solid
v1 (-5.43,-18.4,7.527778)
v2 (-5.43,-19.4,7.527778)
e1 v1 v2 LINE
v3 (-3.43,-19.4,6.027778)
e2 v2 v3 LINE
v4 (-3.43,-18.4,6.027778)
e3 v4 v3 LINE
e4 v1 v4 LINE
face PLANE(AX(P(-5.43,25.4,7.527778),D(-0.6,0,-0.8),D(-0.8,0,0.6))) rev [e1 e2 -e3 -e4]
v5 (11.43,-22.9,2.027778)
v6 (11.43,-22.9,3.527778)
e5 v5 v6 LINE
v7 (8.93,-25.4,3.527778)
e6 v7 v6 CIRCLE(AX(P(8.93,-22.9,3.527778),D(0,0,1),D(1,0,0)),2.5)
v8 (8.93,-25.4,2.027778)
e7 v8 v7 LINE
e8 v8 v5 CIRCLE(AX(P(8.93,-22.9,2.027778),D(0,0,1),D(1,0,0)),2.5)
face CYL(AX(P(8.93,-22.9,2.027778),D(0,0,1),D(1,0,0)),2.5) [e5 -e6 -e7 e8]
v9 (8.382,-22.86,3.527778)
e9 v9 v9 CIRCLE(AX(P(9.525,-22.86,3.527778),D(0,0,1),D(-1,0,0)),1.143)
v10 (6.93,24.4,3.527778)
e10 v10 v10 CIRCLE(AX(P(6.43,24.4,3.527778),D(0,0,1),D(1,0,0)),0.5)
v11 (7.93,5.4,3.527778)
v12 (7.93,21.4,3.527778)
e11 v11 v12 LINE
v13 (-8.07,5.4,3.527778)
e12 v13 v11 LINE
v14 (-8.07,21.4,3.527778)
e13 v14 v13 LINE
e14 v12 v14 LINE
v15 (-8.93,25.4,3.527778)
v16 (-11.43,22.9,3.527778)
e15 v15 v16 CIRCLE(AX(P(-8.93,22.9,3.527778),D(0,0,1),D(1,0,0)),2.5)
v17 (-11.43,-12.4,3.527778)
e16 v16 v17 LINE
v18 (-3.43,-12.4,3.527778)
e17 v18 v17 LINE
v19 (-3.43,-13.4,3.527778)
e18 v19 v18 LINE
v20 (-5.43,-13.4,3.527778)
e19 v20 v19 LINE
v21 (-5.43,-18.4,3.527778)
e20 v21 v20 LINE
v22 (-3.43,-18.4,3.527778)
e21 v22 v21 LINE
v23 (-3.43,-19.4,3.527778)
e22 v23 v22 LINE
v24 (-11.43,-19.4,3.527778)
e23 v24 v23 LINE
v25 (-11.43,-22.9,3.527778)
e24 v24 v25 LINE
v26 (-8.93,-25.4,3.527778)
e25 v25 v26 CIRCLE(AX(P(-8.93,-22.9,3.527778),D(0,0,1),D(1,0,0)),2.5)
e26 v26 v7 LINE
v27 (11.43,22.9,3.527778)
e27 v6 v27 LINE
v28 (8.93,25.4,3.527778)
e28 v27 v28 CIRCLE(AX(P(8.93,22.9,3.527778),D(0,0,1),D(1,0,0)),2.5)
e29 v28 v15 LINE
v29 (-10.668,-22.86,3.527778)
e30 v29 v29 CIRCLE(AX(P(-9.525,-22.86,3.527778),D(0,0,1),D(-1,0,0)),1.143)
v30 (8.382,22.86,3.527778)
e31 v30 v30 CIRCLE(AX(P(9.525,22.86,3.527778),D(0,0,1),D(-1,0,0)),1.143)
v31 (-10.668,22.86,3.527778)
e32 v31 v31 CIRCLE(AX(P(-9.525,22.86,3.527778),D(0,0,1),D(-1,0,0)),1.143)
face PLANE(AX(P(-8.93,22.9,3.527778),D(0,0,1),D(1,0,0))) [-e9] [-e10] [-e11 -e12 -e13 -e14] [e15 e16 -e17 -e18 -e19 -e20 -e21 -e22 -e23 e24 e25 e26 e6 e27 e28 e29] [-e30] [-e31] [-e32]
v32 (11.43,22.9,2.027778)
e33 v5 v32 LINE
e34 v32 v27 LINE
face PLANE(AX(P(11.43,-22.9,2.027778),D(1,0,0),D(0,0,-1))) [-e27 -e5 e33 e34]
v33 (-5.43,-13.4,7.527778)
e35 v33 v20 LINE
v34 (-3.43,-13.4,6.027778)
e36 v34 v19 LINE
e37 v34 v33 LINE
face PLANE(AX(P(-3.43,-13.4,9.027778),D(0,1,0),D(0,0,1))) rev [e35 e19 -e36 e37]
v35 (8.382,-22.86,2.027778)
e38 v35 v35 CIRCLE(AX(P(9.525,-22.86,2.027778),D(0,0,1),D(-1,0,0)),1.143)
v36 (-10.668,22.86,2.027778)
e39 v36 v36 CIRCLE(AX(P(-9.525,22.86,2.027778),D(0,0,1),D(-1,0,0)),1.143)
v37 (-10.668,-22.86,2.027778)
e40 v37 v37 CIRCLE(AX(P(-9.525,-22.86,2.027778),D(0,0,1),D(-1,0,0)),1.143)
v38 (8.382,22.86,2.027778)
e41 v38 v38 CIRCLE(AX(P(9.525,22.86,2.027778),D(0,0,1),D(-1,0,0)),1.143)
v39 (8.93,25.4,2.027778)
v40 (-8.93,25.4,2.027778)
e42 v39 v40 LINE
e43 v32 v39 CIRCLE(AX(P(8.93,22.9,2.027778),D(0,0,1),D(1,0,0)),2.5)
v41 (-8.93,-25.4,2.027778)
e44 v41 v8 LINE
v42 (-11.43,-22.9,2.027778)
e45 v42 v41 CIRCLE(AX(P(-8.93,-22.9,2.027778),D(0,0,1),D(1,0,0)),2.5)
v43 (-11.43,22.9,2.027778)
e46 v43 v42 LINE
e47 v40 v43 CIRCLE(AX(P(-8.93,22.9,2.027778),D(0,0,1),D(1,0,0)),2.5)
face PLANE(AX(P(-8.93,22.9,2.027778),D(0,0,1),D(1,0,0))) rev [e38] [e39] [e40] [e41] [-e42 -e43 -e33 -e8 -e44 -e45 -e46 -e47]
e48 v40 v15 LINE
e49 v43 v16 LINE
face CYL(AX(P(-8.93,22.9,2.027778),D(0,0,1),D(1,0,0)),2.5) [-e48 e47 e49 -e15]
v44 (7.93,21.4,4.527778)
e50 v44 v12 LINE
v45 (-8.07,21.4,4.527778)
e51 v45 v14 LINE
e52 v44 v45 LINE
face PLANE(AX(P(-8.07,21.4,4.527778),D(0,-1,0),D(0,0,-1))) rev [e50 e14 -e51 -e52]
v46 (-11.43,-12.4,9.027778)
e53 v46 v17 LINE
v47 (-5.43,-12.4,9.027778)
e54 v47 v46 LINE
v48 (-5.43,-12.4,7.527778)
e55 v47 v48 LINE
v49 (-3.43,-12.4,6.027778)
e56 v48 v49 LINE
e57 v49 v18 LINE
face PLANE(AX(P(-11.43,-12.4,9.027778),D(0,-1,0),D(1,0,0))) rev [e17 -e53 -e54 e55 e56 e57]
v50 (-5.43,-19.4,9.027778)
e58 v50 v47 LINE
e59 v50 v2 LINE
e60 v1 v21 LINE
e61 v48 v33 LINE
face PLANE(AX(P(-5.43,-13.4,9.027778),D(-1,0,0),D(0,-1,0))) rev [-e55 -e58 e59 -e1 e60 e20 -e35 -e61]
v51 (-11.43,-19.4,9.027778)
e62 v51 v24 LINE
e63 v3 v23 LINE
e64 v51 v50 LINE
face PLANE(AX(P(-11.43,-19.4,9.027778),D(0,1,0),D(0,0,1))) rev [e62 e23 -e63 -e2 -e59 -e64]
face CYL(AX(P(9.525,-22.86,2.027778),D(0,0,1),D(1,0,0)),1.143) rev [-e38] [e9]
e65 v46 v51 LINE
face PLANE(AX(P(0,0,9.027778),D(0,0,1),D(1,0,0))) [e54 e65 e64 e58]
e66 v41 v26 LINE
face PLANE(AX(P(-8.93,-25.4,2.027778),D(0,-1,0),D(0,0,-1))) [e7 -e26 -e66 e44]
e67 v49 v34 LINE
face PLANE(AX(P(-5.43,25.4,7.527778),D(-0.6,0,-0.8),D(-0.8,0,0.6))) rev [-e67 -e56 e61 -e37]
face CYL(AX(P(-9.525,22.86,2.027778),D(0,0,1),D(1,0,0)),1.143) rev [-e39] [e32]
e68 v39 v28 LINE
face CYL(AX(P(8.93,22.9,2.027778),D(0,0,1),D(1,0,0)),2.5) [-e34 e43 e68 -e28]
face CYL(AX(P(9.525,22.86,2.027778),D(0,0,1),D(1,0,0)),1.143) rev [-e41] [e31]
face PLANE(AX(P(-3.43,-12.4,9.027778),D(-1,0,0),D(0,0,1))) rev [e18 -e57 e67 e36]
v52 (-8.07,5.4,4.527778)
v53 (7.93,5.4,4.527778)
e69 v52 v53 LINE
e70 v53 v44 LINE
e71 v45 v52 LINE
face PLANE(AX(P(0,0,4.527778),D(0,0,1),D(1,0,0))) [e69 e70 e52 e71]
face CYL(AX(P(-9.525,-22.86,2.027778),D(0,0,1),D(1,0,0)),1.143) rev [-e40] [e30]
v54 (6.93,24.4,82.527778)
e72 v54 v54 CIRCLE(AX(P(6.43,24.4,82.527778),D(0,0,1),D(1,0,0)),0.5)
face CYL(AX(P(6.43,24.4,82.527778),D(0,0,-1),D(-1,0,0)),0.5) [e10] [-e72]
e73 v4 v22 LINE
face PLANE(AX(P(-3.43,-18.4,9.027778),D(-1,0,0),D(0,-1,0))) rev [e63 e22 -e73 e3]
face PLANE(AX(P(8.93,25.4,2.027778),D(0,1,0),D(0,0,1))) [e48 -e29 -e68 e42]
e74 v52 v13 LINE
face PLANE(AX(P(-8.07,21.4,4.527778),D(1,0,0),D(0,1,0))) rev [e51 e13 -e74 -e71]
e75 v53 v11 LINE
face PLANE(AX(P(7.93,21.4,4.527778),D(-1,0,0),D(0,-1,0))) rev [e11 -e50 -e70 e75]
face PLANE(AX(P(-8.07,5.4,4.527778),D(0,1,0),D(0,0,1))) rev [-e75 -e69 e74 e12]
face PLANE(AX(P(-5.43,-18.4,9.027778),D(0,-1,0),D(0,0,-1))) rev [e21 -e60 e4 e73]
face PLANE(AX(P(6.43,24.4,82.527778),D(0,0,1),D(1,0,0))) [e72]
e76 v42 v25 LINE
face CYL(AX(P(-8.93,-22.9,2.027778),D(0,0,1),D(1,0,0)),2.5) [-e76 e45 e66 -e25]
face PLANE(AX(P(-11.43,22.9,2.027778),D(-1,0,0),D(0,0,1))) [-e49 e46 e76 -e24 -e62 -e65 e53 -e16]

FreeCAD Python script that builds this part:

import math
import FreeCAD as App
import Part
import Sketcher


def add_polygon(sketch, points):
    """Adds a closed chain of lines whose ends are joined by coincident constraints."""
    first, n = sketch.GeometryCount, len(points)
    for a, b in zip(points, points[1:] + points[:1]):
        sketch.addGeometry(Part.LineSegment(App.Vector(*a, 0), App.Vector(*b, 0)), False)
    for i in range(n):
        sketch.addConstraint(Sketcher.Constraint("Coincident", first + i, 2, first + (i + 1) % n, 1))

doc = App.newDocument("Part")
params = doc.addObject("Spreadsheet::Sheet", "Params")
for row, (alias, value) in enumerate([
    ("sketch1_radius", "2.5 mm"),
    ("sketch1_height", "45.8 mm"),
    ("sketch1_width", "17.86 mm"),
    ("pad1_length", "1.5 mm"),
    ("sketch2_width", "16 mm"),
    ("pad2_length", "1 mm"),
    ("sketch3_diameter", "1 mm"),
    ("pad3_length", "79 mm"),
    ("sketch4_width", "8 mm"),
    ("sketch4_width2", "2 mm"),
    ("sketch4_height", "7 mm"),
    ("sketch4_height2", "1 mm"),
    ("pad4_length", "5.5 mm"),
    ("sketch5_width", "2 mm"),
    ("sketch5_height", "3 mm"),
    ("sketch5_height2", "1.5 mm"),
], start=1):
    params.set(f"A{row}", alias)
    params.set(f"B{row}", "=" + value)
    params.setAlias(f"B{row}", alias)

body = doc.addObject("PartDesign::Body", "Body")

# Sketch on XY plane
sketch1 = body.newObject("Sketcher::SketchObject", "Sketch")
sketch1.AttachmentSupport = (doc.getObject("XY_Plane"), [""])
sketch1.MapMode = "FlatFace"
sketch1.AttachmentOffset = App.Placement(App.Vector(0, 0, 3.527778), App.Rotation())
sketch1.addGeometry([
    Part.LineSegment(App.Vector(-11.4, 22.9, 0), App.Vector(-11.4, -22.9, 0)),  # 0
    Part.ArcOfCircle(Part.Circle(App.Vector(-8.9, -22.9, 0), App.Vector(0, 0, 1), 2.5), math.radians(180), math.radians(270)),  # 1
    Part.LineSegment(App.Vector(-8.9, -25.4, 0), App.Vector(8.9, -25.4, 0)),  # 2
    Part.ArcOfCircle(Part.Circle(App.Vector(8.9, -22.9, 0), App.Vector(0, 0, 1), 2.5), math.radians(-90), math.radians(0)),  # 3
    Part.LineSegment(App.Vector(11.4, -22.9, 0), App.Vector(11.4, 22.9, 0)),  # 4
    Part.ArcOfCircle(Part.Circle(App.Vector(8.9, 22.9, 0), App.Vector(0, 0, 1), 2.5), math.radians(0), math.radians(90)),  # 5
    Part.LineSegment(App.Vector(8.9, 25.4, 0), App.Vector(-8.9, 25.4, 0)),  # 6
    Part.ArcOfCircle(Part.Circle(App.Vector(-8.9, 22.9, 0), App.Vector(0, 0, 1), 2.5), math.radians(90), math.radians(180)),  # 7
    Part.Circle(App.Vector(-9.5, -22.9, 0), App.Vector(0, 0, 1), 1.1),  # 8
    Part.Circle(App.Vector(9.5, -22.9, 0), App.Vector(0, 0, 1), 1.1),  # 9
    Part.Circle(App.Vector(-9.5, 22.9, 0), App.Vector(0, 0, 1), 1.1),  # 10
    Part.Circle(App.Vector(9.5, 22.9, 0), App.Vector(0, 0, 1), 1.1),  # 11
], False)
sketch1.addConstraint([
    Sketcher.Constraint("Tangent", 0, 2, 1, 1),
    Sketcher.Constraint("Tangent", 1, 2, 2, 1),
    Sketcher.Constraint("Tangent", 2, 2, 3, 1),
    Sketcher.Constraint("Tangent", 3, 2, 4, 1),
    Sketcher.Constraint("Tangent", 4, 2, 5, 1),
    Sketcher.Constraint("Tangent", 5, 2, 6, 1),
    Sketcher.Constraint("Tangent", 6, 2, 7, 1),
    Sketcher.Constraint("Tangent", 7, 2, 0, 1),
    Sketcher.Constraint("Vertical", 0),
    Sketcher.Constraint("Horizontal", 2),
    Sketcher.Constraint("Vertical", 4),
    Sketcher.Constraint("Horizontal", 6),
    Sketcher.Constraint("Equal", 1, 3),
    Sketcher.Constraint("Equal", 3, 5),
    Sketcher.Constraint("Equal", 5, 7),
    Sketcher.Constraint("Equal", 8, 9),
    Sketcher.Constraint("Equal", 9, 10),
    Sketcher.Constraint("Equal", 10, 11),
    Sketcher.Constraint("Symmetric", 1, 3, 5, 3, -1, 1),
    Sketcher.Constraint("Symmetric", 9, 3, 10, 3, -1, 1),
    Sketcher.Constraint("Symmetric", 8, 3, 11, 3, -1, 1),
    Sketcher.Constraint("Symmetric", 8, 3, 9, 3, -2),
    Sketcher.Constraint("Radius", 1, 2.5),
    Sketcher.Constraint("Diameter", 8, 2.286),
    Sketcher.Constraint("DistanceY", 0, 2, 0, 1, 45.8),
    Sketcher.Constraint("DistanceX", 2, 1, 2, 2, 17.86),
    Sketcher.Constraint("DistanceY", 8, 3, -1, 1, 22.86),
    Sketcher.Constraint("DistanceX", 8, 3, 9, 3, 19.05),
])
sketch1.setExpression("Constraints[22]", "Params.sketch1_radius")
sketch1.setExpression("Constraints[24]", "Params.sketch1_height")
sketch1.setExpression("Constraints[25]", "Params.sketch1_width")
pad1 = body.newObject("PartDesign::Pad", "Pad")
pad1.Profile = sketch1
pad1.setExpression("Length", "Params.pad1_length")
pad1.Reversed = True

# Sketch on XY plane
sketch2 = body.newObject("Sketcher::SketchObject", "Sketch001")
sketch2.AttachmentSupport = (doc.getObject("XY_Plane"), [""])
sketch2.MapMode = "FlatFace"
sketch2.AttachmentOffset = App.Placement(App.Vector(0, 0, 3.527778), App.Rotation())
add_polygon(sketch2, [(-8, 21), (-8, 5), (8, 5), (8, 21)])  # lines 0-3
sketch2.addConstraint([
    Sketcher.Constraint("Vertical", 0),
    Sketcher.Constraint("Horizontal", 1),
    Sketcher.Constraint("Vertical", 2),
    Sketcher.Constraint("Horizontal", 3),
    Sketcher.Constraint("Equal", 3, 0),
    Sketcher.Constraint("DistanceX", 1, 1, 1, 2, 16.0),
    Sketcher.Constraint("DistanceY", -1, 1, 0, 2, 5.4),
    Sketcher.Constraint("DistanceX", 0, 2, -1, 1, 8.07),
])
sketch2.setExpression("Constraints[9]", "Params.sketch2_width")
pad2 = body.newObject("PartDesign::Pad", "Pad001")
pad2.Profile = sketch2
pad2.setExpression("Length", "Params.pad2_length")

# Sketch on XY plane
sketch3 = body.newObject("Sketcher::SketchObject", "Sketch002")
sketch3.AttachmentSupport = (doc.getObject("XY_Plane"), [""])
sketch3.MapMode = "FlatFace"
sketch3.AttachmentOffset = App.Placement(App.Vector(0, 0, 3.527778), App.Rotation())
sketch3.addGeometry(Part.Circle(App.Vector(6.4, 24.4, 0), App.Vector(0, 0, 1), 0.5), False)
sketch3.addConstraint([
    Sketcher.Constraint("Diameter", 0, 1.0),
    Sketcher.Constraint("DistanceY", -1, 1, 0, 3, 24.4),
    Sketcher.Constraint("DistanceX", -1, 1, 0, 3, 6.43),
])
sketch3.setExpression("Constraints[0]", "Params.sketch3_diameter")
pad3 = body.newObject("PartDesign::Pad", "Pad002")
pad3.Profile = sketch3
pad3.setExpression("Length", "Params.pad3_length")

# Sketch on XY plane
sketch4 = body.newObject("Sketcher::SketchObject", "Sketch003")
sketch4.AttachmentSupport = (doc.getObject("XY_Plane"), [""])
sketch4.MapMode = "FlatFace"
sketch4.AttachmentOffset = App.Placement(App.Vector(0, 0, 3.527778), App.Rotation())
add_polygon(sketch4, [(-3.4, -12.4), (-11.4, -12.4), (-11.4, -19.4), (-3.4, -19.4), (-3.4, -18.4), (-5.4, -18.4), (-5.4, -13.4), (-3.4, -13.4)])  # lines 0-7
sketch4.addConstraint([
    Sketcher.Constraint("Horizontal", 0),
    Sketcher.Constraint("Vertical", 1),
    Sketcher.Constraint("Horizontal", 2),
    Sketcher.Constraint("Vertical", 3),
    Sketcher.Constraint("Horizontal", 4),
    Sketcher.Constraint("Vertical", 5),
    Sketcher.Constraint("Horizontal", 6),
    Sketcher.Constraint("Vertical", 7),
    Sketcher.Constraint("Vertical", 3, 2, 6, 2),
    Sketcher.Constraint("Equal", 3, 7),
    Sketcher.Constraint("DistanceX", 0, 2, 0, 1, 8.0),
    Sketcher.Constraint("DistanceX", 4, 2, 4, 1, 2.0),
    Sketcher.Constraint("DistanceY", 1, 2, 1, 1, 7.0),
    Sketcher.Constraint("DistanceY", 3, 1, 3, 2, 1.0),
    Sketcher.Constraint("DistanceY", 0, 2, -1, 1, 12.4),
    Sketcher.Constraint("DistanceX", 0, 2, -1, 1, 11.43),
])
sketch4.setExpression("Constraints[18]", "Params.sketch4_width")
sketch4.setExpression("Constraints[19]", "Params.sketch4_width2")
sketch4.setExpression("Constraints[20]", "Params.sketch4_height")
sketch4.setExpression("Constraints[21]", "Params.sketch4_height2")
pad4 = body.newObject("PartDesign::Pad", "Pad003")
pad4.Profile = sketch4
pad4.setExpression("Length", "Params.pad4_length")

# Sketch on XZ plane
sketch5 = body.newObject("Sketcher::SketchObject", "Sketch004")
sketch5.AttachmentSupport = (doc.getObject("XZ_Plane"), [""])
sketch5.MapMode = "FlatFace"
sketch5.AttachmentOffset = App.Placement(App.Vector(0, 0, 19.4), App.Rotation())
add_polygon(sketch5, [(-5.4, 9), (-5.4, 7.5), (-3.4, 6), (-3.4, 9)])  # lines 0-3
sketch5.addConstraint([
    Sketcher.Constraint("Vertical", 0),
    Sketcher.Constraint("Vertical", 2),
    Sketcher.Constraint("Horizontal", 3),
    Sketcher.Constraint("DistanceX", 3, 2, 3, 1, 2.0),
    Sketcher.Constraint("DistanceY", 2, 1, 2, 2, 3.0),
    Sketcher.Constraint("DistanceY", 0, 2, 0, 1, 1.5),
    Sketcher.Constraint("DistanceX", 0, 2, -1, 1, 5.43),
    Sketcher.Constraint("DistanceY", -1, 1, 0, 2, 7.527778),
])
sketch5.setExpression("Constraints[7]", "Params.sketch5_width")
sketch5.setExpression("Constraints[8]", "Params.sketch5_height")
sketch5.setExpression("Constraints[9]", "Params.sketch5_height2")
pocket1 = body.newObject("PartDesign::Pocket", "Pocket")
pocket1.Profile = sketch5
pocket1.Type = "ThroughAll"

doc.recompute()
